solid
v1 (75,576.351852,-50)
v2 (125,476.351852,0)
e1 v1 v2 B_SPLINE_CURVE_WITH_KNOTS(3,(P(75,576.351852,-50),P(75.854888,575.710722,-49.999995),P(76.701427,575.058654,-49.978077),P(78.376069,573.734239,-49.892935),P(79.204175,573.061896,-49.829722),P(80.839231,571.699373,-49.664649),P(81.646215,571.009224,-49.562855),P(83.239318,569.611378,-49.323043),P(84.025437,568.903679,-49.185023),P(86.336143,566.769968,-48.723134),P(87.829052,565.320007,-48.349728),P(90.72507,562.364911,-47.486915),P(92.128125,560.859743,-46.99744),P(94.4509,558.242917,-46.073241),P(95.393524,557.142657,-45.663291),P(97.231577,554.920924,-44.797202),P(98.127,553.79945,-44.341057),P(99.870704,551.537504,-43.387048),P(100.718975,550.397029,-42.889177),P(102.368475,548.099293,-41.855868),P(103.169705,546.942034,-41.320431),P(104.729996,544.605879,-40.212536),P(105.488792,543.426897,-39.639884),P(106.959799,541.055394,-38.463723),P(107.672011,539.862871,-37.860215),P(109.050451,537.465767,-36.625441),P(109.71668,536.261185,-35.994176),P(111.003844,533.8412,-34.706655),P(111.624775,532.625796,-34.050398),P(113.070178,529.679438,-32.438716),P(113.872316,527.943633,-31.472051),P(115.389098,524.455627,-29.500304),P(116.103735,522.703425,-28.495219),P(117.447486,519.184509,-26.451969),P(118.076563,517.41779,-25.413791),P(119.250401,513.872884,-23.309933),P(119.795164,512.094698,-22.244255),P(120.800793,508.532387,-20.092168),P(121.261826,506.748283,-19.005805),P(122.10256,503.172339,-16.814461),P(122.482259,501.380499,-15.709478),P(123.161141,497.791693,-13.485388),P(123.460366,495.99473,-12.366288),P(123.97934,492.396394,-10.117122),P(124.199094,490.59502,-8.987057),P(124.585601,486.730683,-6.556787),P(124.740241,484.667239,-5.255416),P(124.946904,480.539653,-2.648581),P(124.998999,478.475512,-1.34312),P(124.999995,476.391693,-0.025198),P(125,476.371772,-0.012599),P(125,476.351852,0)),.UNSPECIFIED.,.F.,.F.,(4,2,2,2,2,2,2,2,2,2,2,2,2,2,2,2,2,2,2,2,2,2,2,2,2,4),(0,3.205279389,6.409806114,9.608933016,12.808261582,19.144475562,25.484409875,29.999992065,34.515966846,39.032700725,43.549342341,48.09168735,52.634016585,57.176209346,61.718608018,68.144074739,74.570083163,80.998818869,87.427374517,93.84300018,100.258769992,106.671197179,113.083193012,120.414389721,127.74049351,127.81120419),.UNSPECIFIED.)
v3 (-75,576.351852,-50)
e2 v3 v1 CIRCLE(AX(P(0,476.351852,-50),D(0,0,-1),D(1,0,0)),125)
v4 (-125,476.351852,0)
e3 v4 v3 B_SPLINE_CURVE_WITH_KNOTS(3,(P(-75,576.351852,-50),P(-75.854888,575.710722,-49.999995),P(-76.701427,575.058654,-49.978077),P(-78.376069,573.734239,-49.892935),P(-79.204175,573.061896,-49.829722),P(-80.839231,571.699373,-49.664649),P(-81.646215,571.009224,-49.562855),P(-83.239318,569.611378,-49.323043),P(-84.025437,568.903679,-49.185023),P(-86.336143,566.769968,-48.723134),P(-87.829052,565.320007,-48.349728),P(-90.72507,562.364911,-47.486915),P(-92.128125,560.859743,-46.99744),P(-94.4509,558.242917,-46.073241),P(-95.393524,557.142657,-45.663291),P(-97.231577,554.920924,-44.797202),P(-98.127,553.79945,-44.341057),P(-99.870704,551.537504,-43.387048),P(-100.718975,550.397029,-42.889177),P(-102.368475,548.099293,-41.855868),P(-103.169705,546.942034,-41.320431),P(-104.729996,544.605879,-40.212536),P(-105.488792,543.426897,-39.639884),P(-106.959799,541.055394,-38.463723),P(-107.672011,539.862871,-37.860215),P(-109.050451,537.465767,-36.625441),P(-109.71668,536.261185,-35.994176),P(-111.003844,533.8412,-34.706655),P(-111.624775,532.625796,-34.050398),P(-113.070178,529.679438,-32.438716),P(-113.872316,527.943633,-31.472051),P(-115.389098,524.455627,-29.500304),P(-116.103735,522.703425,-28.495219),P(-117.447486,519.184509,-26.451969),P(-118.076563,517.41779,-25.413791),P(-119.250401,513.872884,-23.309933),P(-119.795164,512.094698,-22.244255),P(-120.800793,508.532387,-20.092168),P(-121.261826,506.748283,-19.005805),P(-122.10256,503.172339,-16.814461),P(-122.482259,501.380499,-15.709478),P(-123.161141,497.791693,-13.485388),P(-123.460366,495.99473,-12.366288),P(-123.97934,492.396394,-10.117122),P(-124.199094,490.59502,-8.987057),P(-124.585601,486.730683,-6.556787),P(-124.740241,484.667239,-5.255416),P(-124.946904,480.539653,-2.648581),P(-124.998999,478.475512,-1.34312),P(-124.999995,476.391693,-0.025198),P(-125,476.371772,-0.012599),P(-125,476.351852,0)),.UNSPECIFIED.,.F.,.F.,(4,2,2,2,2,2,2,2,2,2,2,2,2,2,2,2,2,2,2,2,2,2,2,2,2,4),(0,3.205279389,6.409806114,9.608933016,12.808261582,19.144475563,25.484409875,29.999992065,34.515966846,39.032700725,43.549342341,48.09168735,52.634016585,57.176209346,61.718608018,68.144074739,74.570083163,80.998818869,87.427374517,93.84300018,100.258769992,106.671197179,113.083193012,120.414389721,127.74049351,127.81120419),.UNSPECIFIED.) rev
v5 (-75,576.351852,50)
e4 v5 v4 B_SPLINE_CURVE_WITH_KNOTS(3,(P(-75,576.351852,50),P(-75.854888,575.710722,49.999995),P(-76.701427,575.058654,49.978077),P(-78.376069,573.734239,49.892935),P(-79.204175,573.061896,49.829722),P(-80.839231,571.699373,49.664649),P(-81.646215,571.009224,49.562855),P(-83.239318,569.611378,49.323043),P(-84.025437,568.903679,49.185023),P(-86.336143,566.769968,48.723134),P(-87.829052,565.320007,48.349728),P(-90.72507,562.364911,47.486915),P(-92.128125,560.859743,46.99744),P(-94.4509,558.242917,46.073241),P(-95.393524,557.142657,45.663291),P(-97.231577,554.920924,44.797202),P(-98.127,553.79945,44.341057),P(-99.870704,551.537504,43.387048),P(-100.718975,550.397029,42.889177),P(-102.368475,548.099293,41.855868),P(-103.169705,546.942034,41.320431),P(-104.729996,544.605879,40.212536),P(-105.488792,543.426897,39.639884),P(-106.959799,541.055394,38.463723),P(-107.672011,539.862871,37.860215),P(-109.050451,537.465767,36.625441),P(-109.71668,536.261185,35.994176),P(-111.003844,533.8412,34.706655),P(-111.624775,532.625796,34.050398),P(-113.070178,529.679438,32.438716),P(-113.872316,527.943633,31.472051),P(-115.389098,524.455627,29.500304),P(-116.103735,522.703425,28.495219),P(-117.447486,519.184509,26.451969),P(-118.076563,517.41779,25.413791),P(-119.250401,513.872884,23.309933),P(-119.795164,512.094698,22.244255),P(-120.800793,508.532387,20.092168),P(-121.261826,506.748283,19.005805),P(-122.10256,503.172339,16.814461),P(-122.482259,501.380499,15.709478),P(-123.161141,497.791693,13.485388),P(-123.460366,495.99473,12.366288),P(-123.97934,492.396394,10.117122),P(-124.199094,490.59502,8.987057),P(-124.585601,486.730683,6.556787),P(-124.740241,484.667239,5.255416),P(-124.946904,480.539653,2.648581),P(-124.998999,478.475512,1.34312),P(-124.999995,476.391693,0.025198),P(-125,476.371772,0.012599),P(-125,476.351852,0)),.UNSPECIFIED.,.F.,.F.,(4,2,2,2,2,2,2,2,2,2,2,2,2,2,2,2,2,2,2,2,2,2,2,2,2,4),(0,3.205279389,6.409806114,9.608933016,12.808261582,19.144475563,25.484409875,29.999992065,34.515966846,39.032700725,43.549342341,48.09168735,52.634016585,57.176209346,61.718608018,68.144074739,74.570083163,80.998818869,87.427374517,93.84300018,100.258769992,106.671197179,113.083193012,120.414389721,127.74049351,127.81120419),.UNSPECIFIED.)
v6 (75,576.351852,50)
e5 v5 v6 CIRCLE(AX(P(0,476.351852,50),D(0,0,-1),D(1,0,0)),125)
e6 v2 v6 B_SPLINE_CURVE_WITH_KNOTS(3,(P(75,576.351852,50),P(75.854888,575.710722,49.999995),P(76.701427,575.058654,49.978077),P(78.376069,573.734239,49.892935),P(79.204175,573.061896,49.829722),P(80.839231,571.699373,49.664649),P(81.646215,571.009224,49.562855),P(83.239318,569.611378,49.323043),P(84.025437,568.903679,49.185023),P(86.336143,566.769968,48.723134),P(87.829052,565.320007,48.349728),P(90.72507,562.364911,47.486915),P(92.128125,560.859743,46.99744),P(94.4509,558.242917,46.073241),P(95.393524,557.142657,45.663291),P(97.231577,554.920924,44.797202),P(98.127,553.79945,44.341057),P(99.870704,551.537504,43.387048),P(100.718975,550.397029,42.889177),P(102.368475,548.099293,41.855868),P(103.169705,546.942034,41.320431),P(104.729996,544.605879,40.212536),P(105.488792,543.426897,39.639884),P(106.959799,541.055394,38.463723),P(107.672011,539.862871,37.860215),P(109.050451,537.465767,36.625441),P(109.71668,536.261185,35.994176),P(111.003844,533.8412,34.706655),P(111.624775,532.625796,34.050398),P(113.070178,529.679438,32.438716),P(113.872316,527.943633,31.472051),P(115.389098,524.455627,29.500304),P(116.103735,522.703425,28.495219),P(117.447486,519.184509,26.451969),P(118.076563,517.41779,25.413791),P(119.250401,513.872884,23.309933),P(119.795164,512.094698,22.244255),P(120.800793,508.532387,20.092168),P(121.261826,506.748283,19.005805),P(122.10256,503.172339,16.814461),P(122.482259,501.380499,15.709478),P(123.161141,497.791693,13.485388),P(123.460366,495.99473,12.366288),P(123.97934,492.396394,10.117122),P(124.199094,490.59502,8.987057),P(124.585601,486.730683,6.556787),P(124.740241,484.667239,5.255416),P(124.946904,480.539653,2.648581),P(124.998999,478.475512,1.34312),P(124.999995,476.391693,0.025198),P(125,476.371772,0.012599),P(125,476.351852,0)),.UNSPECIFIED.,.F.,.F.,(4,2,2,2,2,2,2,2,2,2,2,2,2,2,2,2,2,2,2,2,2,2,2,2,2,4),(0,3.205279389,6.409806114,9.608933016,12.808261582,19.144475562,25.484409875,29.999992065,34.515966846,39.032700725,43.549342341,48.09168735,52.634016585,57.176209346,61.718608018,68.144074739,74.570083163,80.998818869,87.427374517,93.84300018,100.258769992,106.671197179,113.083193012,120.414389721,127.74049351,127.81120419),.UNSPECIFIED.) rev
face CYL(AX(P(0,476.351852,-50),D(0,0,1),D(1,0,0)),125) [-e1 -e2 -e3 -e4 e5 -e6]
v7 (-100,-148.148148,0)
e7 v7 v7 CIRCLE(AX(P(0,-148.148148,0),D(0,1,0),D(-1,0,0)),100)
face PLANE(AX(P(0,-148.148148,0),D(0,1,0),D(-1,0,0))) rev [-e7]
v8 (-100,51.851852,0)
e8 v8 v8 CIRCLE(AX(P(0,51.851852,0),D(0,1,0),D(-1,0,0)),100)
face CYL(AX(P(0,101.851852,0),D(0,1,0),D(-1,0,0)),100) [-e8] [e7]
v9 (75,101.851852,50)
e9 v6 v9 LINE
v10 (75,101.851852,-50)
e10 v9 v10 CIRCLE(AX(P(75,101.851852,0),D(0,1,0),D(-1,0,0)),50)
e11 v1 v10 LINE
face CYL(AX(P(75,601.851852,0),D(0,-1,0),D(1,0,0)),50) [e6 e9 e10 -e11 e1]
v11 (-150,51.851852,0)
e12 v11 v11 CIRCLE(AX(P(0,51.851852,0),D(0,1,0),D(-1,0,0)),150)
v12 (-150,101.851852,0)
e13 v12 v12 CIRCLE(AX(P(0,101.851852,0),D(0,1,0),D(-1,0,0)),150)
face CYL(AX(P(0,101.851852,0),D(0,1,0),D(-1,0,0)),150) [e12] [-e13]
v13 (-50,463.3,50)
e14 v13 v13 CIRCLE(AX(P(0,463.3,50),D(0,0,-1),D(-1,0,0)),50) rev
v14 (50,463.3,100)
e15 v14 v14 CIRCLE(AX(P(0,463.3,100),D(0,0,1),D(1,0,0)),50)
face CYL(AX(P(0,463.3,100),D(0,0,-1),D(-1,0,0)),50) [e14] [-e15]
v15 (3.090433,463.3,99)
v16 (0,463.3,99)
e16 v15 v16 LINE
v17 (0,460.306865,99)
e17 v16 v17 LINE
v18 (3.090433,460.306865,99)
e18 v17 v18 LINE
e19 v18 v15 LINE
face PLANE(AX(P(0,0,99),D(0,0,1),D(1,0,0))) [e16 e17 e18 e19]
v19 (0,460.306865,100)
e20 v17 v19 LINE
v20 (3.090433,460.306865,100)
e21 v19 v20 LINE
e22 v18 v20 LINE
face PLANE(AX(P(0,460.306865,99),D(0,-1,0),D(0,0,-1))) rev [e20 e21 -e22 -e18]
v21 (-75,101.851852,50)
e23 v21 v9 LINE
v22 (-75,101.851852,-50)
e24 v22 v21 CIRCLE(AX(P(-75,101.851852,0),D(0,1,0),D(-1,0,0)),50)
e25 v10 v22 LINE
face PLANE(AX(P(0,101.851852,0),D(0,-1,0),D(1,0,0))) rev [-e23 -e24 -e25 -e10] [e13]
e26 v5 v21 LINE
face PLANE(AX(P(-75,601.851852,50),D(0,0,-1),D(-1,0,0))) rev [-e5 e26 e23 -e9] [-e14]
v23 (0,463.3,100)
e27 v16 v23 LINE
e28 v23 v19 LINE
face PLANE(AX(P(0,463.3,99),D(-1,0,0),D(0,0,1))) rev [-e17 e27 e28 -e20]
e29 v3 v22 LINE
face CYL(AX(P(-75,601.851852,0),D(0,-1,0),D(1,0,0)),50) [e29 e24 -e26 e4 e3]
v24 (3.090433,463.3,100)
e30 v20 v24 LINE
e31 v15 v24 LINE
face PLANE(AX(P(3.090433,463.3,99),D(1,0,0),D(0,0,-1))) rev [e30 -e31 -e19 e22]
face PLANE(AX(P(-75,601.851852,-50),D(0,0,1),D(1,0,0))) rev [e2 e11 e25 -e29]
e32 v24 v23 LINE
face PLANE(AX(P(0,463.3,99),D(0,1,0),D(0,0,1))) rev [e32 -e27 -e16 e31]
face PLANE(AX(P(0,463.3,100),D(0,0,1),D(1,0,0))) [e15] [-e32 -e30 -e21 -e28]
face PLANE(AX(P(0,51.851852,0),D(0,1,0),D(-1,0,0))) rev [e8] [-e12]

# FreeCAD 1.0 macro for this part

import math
import FreeCAD as App
import Part
import Sketcher
Q = App.Units.Quantity

doc = App.newDocument("Part")
params = doc.addObject("Spreadsheet::Sheet", "Params")
for row, (alias, value) in enumerate([
    ("sketch1_width", "150 mm"),
    ("sketch1_width2", "100 mm"),
    ("sketch1_height", "250 mm"),
    ("revolution_angle", "360 deg"),
    ("sketch2_radius", "50 mm"),
    ("sketch2_width", "150 mm"),
    ("pad1_length", "500 mm"),
    ("sketch3_radius", "125 mm"),
    ("sketch3_height", "125.5 mm"),
    ("sketch3_height2", "1625.5 mm"),
    ("pocket1_length", "100 mm"),
    ("sketch4_diameter", "100 mm"),
    ("pad2_length", "50 mm"),
    ("pocket2_length", "1 mm"),
], start=1):
    params.set(f"A{row}", alias)
    params.set(f"B{row}", "=" + value)
    params.setAlias(f"B{row}", alias)

body = doc.addObject("PartDesign::Body", "Body")

# Sketch on XY plane
sketch1 = body.newObject("Sketcher::SketchObject", "Sketch")
sketch1.AttachmentSupport = (doc.getObject("XY_Plane"), [""])
sketch1.MapMode = "FlatFace"
sketch1.addGeometry([
    Part.LineSegment(App.Vector(150, 101.851852, 0), App.Vector(0, 101.851852, 0)),  # 0
    Part.LineSegment(App.Vector(0, 101.851852, 0), App.Vector(0, -148.148148, 0)),  # 1
    Part.LineSegment(App.Vector(0, -148.148148, 0), App.Vector(100, -148.148148, 0)),  # 2
    Part.LineSegment(App.Vector(100, -148.148148, 0), App.Vector(100, 51.851852, 0)),  # 3
    Part.LineSegment(App.Vector(100, 51.851852, 0), App.Vector(150, 51.851852, 0)),  # 4
    Part.LineSegment(App.Vector(150, 51.851852, 0), App.Vector(150, 101.851852, 0)),  # 5
], False)
sketch1.addConstraint([
    Sketcher.Constraint("Coincident", 0, 2, 1, 1),
    Sketcher.Constraint("Coincident", 1, 2, 2, 1),
    Sketcher.Constraint("Coincident", 2, 2, 3, 1),
    Sketcher.Constraint("Coincident", 3, 2, 4, 1),
    Sketcher.Constraint("Coincident", 4, 2, 5, 1),
    Sketcher.Constraint("Coincident", 5, 2, 0, 1),
    Sketcher.Constraint("Horizontal", 0),
    Sketcher.Constraint("Vertical", 1),
    Sketcher.Constraint("Horizontal", 2),
    Sketcher.Constraint("Vertical", 3),
    Sketcher.Constraint("Horizontal", 4),
    Sketcher.Constraint("Vertical", 5),
    Sketcher.Constraint("PointOnObject", 0, 2, -2),
    Sketcher.Constraint("Equal", 4, 5),
    Sketcher.Constraint("DistanceX", 0, 2, 0, 1, Q("150 mm")),
    Sketcher.Constraint("DistanceX", 2, 1, 2, 2, Q("100 mm")),
    Sketcher.Constraint("DistanceY", 1, 2, 1, 1, Q("250 mm")),
    Sketcher.Constraint("DistanceY", -1, 1, 0, 2, Q("101.851852 mm")),
])
sketch1.setExpression("Constraints[14]", "Params.sketch1_width")
sketch1.setExpression("Constraints[15]", "Params.sketch1_width2")
sketch1.setExpression("Constraints[16]", "Params.sketch1_height")
revolution = body.newObject("PartDesign::Revolution", "Revolution")
revolution.Profile = sketch1
revolution.ReferenceAxis = (sketch1, ["V_Axis"])
revolution.setExpression("Angle", "Params.revolution_angle")

# Sketch on XZ plane
sketch2 = body.newObject("Sketcher::SketchObject", "Sketch001")
sketch2.AttachmentSupport = (doc.getObject("XZ_Plane"), [""])
sketch2.MapMode = "FlatFace"
sketch2.AttachmentOffset = App.Placement(App.Vector(0, 0, -101.851852), App.Rotation())
sketch2.addGeometry([
    Part.LineSegment(App.Vector(75, -50, 0), App.Vector(-75, -50, 0)),
    Part.ArcOfCircle(Part.Circle(App.Vector(-75, 0, 0), App.Vector(0, 0, 1), 50), math.radians(90), math.radians(270)),
    Part.LineSegment(App.Vector(-75, 50, 0), App.Vector(75, 50, 0)),
    Part.ArcOfCircle(Part.Circle(App.Vector(75, 0, 0), App.Vector(0, 0, 1), 50), math.radians(-90), math.radians(90)),
], False)
sketch2.addConstraint([
    Sketcher.Constraint("Tangent", 0, 2, 1, 2),
    Sketcher.Constraint("Tangent", 1, 1, 2, 1),
    Sketcher.Constraint("Tangent", 2, 2, 3, 2),
    Sketcher.Constraint("Tangent", 3, 1, 0, 1),
    Sketcher.Constraint("Horizontal", 0),
    Sketcher.Constraint("Horizontal", 2),
    Sketcher.Constraint("Symmetric", 1, 3, 3, 3, -1, 1),
    Sketcher.Constraint("Radius", 1, Q("50 mm")),
    Sketcher.Constraint("DistanceX", 0, 2, 0, 1, Q("150 mm")),
])
sketch2.setExpression("Constraints[7]", "Params.sketch2_radius")
sketch2.setExpression("Constraints[8]", "Params.sketch2_width")
pad1 = body.newObject("PartDesign::Pad", "Pad")
pad1.Profile = sketch2
pad1.setExpression("Length", "Params.pad1_length")
pad1.Reversed = True

# Sketch on XY plane
sketch3 = body.newObject("Sketcher::SketchObject", "Sketch002")
sketch3.AttachmentSupport = (doc.getObject("XY_Plane"), [""])
sketch3.MapMode = "FlatFace"
sketch3.AttachmentOffset = App.Placement(App.Vector(0, 0, 50), App.Rotation())
sketch3.addGeometry([
    Part.LineSegment(App.Vector(-125, 601.851852, 0), App.Vector(-125, 476.351852, 0)),
    Part.ArcOfCircle(Part.Circle(App.Vector(0, 476.351852, 0), App.Vector(0, 0, 1), 125), math.radians(0), math.radians(180)),
    Part.LineSegment(App.Vector(125, 476.351852, 0), App.Vector(125, 2101.851852, 0)),
    Part.LineSegment(App.Vector(125, 2101.851852, 0), App.Vector(-125, 601.851852, 0)),
], False)
sketch3.addConstraint([
    Sketcher.Constraint("Tangent", 0, 2, 1, 2),
    Sketcher.Constraint("Tangent", 1, 1, 2, 1),
    Sketcher.Constraint("Coincident", 2, 2, 3, 1),
    Sketcher.Constraint("Coincident", 3, 2, 0, 1),
    Sketcher.Constraint("Vertical", 0),
    Sketcher.Constraint("Vertical", 2),
    Sketcher.Constraint("PointOnObject", 1, 3, -2),
    Sketcher.Constraint("Radius", 1, Q("125 mm")),
    Sketcher.Constraint("DistanceY", 0, 2, 0, 1, Q("125.5 mm")),
    Sketcher.Constraint("DistanceY", 2, 1, 2, 2, Q("1625.5 mm")),
    Sketcher.Constraint("DistanceY", -1, 1, 1, 3, Q("476.351852 mm")),
])
sketch3.setExpression("Constraints[7]", "Params.sketch3_radius")
sketch3.setExpression("Constraints[8]", "Params.sketch3_height")
sketch3.setExpression("Constraints[9]", "Params.sketch3_height2")
pocket1 = body.newObject("PartDesign::Pocket", "Pocket")
pocket1.Profile = sketch3
pocket1.setExpression("Length", "Params.pocket1_length")

# Sketch on XY plane
sketch4 = body.newObject("Sketcher::SketchObject", "Sketch003")
sketch4.AttachmentSupport = (doc.getObject("XY_Plane"), [""])
sketch4.MapMode = "FlatFace"
sketch4.AttachmentOffset = App.Placement(App.Vector(0, 0, 50), App.Rotation())
sketch4.addGeometry(Part.Circle(App.Vector(0, 463.3, 0), App.Vector(0, 0, 1), 50), False)
sketch4.addConstraint([
    Sketcher.Constraint("PointOnObject", 0, 3, -2),
    Sketcher.Constraint("Diameter", 0, Q("100 mm")),
    Sketcher.Constraint("DistanceY", -1, 1, 0, 3, Q("463.3 mm")),
])
sketch4.setExpression("Constraints[1]", "Params.sketch4_diameter")
pad2 = body.newObject("PartDesign::Pad", "Pad001")
pad2.Profile = sketch4
pad2.setExpression("Length", "Params.pad2_length")

# Sketch on XY plane
sketch5 = body.newObject("Sketcher::SketchObject", "Sketch004")
sketch5.AttachmentSupport = (doc.getObject("XY_Plane"), [""])
sketch5.MapMode = "FlatFace"
sketch5.AttachmentOffset = App.Placement(App.Vector(0, 0, 100), App.Rotation())
sketch5.addGeometry([
    Part.LineSegment(App.Vector(0, 463.3, 0), App.Vector(0, 460.306865, 0)),
    Part.LineSegment(App.Vector(0, 460.306865, 0), App.Vector(3.090433, 460.306865, 0)),
    Part.LineSegment(App.Vector(3.090433, 460.306865, 0), App.Vector(3.090433, 463.3, 0)),
    Part.LineSegment(App.Vector(3.090433, 463.3, 0), App.Vector(0, 463.3, 0)),
], False)
sketch5.addConstraint([
    Sketcher.Constraint("Coincident", 0, 2, 1, 1),
    Sketcher.Constraint("Coincident", 1, 2, 2, 1),
    Sketcher.Constraint("Coincident", 2, 2, 3, 1),
    Sketcher.Constraint("Coincident", 3, 2, 0, 1),
    Sketcher.Constraint("Vertical", 0),
    Sketcher.Constraint("Horizontal", 1),
    Sketcher.Constraint("Vertical", 2),
    Sketcher.Constraint("Horizontal", 3),
    Sketcher.Constraint("PointOnObject", 0, 2, -2),
    Sketcher.Constraint("DistanceY", -1, 1, 2, 2, Q("463.3 mm")),
    Sketcher.Constraint("DistanceX", 1, 1, 1, 2, Q("3.090433 mm")),
    Sketcher.Constraint("DistanceY", 0, 2, 0, 1, Q("2.993135 mm")),
])
pocket2 = body.newObject("PartDesign::Pocket", "Pocket001")
pocket2.Profile = sketch5
pocket2.setExpression("Length", "Params.pocket2_length")

doc.recompute()
